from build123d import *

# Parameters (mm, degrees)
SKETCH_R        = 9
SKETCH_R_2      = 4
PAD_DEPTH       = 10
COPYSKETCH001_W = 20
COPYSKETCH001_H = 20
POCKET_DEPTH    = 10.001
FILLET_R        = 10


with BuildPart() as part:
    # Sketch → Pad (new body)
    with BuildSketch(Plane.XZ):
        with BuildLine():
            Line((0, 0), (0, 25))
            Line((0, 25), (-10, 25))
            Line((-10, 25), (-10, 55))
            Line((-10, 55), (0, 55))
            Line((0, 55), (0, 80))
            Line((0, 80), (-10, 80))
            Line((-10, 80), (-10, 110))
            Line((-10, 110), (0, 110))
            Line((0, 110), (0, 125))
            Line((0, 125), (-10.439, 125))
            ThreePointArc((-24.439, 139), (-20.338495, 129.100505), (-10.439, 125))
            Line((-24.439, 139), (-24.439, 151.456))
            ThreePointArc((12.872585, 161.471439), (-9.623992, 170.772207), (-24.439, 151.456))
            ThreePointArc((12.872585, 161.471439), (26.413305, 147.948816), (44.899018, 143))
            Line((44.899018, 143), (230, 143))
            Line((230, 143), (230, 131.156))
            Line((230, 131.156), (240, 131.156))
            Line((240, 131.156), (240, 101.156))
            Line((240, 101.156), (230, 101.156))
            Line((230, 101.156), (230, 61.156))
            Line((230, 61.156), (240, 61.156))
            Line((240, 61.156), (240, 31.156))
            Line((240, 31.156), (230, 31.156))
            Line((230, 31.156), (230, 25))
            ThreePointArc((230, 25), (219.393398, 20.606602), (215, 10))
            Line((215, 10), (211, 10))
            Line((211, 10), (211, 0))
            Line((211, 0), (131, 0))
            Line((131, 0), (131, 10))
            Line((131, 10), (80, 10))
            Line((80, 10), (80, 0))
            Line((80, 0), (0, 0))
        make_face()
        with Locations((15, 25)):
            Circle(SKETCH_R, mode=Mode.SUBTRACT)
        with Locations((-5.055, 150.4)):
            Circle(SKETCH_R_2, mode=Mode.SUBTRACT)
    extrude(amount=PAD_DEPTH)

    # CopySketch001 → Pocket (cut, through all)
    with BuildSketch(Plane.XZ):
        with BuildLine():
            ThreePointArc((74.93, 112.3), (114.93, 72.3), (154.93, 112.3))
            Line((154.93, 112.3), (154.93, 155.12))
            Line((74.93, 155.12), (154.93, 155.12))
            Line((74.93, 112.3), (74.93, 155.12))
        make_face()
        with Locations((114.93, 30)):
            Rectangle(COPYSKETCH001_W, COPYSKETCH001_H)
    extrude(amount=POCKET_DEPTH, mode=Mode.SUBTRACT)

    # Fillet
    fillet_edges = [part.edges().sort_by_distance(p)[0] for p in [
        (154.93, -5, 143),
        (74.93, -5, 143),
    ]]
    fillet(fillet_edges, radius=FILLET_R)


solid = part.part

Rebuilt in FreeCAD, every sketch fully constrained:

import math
import FreeCAD as App
import Part
import Sketcher
from FreeCAD import Vector
Q = App.Units.Quantity


def edges_at(feature, points):
    """Names of the edges that pass closest to the given points."""
    edges = feature.Shape.Edges
    near = lambda p: min(range(len(edges)), key=lambda i: edges[i].distToShape(Part.Vertex(*p))[0])
    return sorted({f"Edge{near(p) + 1}" for p in points})

doc = App.newDocument("Part")
body = doc.addObject("PartDesign::Body", "Body")

sketch1 = body.newObject("Sketcher::SketchObject", "Sketch")
sketch1.AttachmentSupport = (doc.getObject("XZ_Plane"), [""])
sketch1.MapMode = "FlatFace"
sketch1.addGeometry(Part.LineSegment(Vector(0, 25, 0), Vector(0, 0, 0)), False)
sketch1.addGeometry(Part.LineSegment(Vector(0, 0, 0), Vector(80, 0, 0)), False)
sketch1.addGeometry(Part.LineSegment(Vector(80, 0, 0), Vector(80, 10, 0)), False)
sketch1.addGeometry(Part.LineSegment(Vector(80, 10, 0), Vector(131, 10, 0)), False)
sketch1.addGeometry(Part.LineSegment(Vector(131, 10, 0), Vector(131, 0, 0)), False)
sketch1.addGeometry(Part.LineSegment(Vector(131, 0, 0), Vector(211, 0, 0)), False)
sketch1.addGeometry(Part.LineSegment(Vector(211, 0, 0), Vector(211, 10, 0)), False)
sketch1.addGeometry(Part.LineSegment(Vector(211, 10, 0), Vector(215, 10, 0)), False)
sketch1.addGeometry(Part.ArcOfCircle(Part.Circle(Vector(230, 10, 0), Vector(0, 0, 1), 15), math.radians(90), math.radians(180)), False)
sketch1.addGeometry(Part.LineSegment(Vector(230, 25, 0), Vector(230, 31.2, 0)), False)
sketch1.addGeometry(Part.LineSegment(Vector(230, 31.2, 0), Vector(240, 31.2, 0)), False)
sketch1.addGeometry(Part.LineSegment(Vector(240, 31.2, 0), Vector(240, 61.2, 0)), False)
sketch1.addGeometry(Part.LineSegment(Vector(240, 61.2, 0), Vector(230, 61.2, 0)), False)
sketch1.addGeometry(Part.LineSegment(Vector(230, 61.2, 0), Vector(230, 101.2, 0)), False)
sketch1.addGeometry(Part.LineSegment(Vector(230, 101.2, 0), Vector(240, 101.2, 0)), False)
sketch1.addGeometry(Part.LineSegment(Vector(240, 101.2, 0), Vector(240, 131.2, 0)), False)
sketch1.addGeometry(Part.LineSegment(Vector(240, 131.2, 0), Vector(230, 131.2, 0)), False)
sketch1.addGeometry(Part.LineSegment(Vector(230, 131.2, 0), Vector(230, 143, 0)), False)
sketch1.addGeometry(Part.LineSegment(Vector(230, 143, 0), Vector(44.9, 143, 0)), False)
sketch1.addGeometry(Part.ArcOfCircle(Part.Circle(Vector(44.9, 180, 0), Vector(0, 0, 1), 37), math.radians(-150), math.radians(-90)), False)
sketch1.addGeometry(Part.ArcOfCircle(Part.Circle(Vector(-4.4, 151.5, 0), Vector(0, 0, 1), 20), math.radians(30), math.radians(180)), False)
sketch1.addGeometry(Part.LineSegment(Vector(-24.4, 151.5, 0), Vector(-24.4, 139, 0)), False)
sketch1.addGeometry(Part.ArcOfCircle(Part.Circle(Vector(-10.4, 139, 0), Vector(0, 0, 1), 14), math.radians(180), math.radians(270)), False)
sketch1.addGeometry(Part.LineSegment(Vector(-10.4, 125, 0), Vector(0, 125, 0)), False)
sketch1.addGeometry(Part.LineSegment(Vector(0, 125, 0), Vector(0, 110, 0)), False)
sketch1.addGeometry(Part.LineSegment(Vector(0, 110, 0), Vector(-10, 110, 0)), False)
sketch1.addGeometry(Part.LineSegment(Vector(-10, 110, 0), Vector(-10, 80, 0)), False)
sketch1.addGeometry(Part.LineSegment(Vector(-10, 80, 0), Vector(0, 80, 0)), False)
sketch1.addGeometry(Part.LineSegment(Vector(0, 80, 0), Vector(0, 55, 0)), False)
sketch1.addGeometry(Part.LineSegment(Vector(0, 55, 0), Vector(-10, 55, 0)), False)
sketch1.addGeometry(Part.LineSegment(Vector(-10, 55, 0), Vector(-10, 25, 0)), False)
sketch1.addGeometry(Part.LineSegment(Vector(-10, 25, 0), Vector(0, 25, 0)), False)
sketch1.addGeometry(Part.Circle(Vector(15, 25, 0), Vector(0, 0, 1), 9), False)
sketch1.addGeometry(Part.Circle(Vector(-5.1, 150.4, 0), Vector(0, 0, 1), 4), False)
sketch1.addConstraint(Sketcher.Constraint("Coincident", 0, 2, 1, 1))
sketch1.addConstraint(Sketcher.Constraint("Coincident", 1, 2, 2, 1))
sketch1.addConstraint(Sketcher.Constraint("Coincident", 2, 2, 3, 1))
sketch1.addConstraint(Sketcher.Constraint("Coincident", 3, 2, 4, 1))
sketch1.addConstraint(Sketcher.Constraint("Coincident", 4, 2, 5, 1))
sketch1.addConstraint(Sketcher.Constraint("Coincident", 5, 2, 6, 1))
sketch1.addConstraint(Sketcher.Constraint("Coincident", 6, 2, 7, 1))
sketch1.addConstraint(Sketcher.Constraint("Coincident", 7, 2, 8, 2))
sketch1.addConstraint(Sketcher.Constraint("Coincident", 8, 1, 9, 1))
sketch1.addConstraint(Sketcher.Constraint("Coincident", 9, 2, 10, 1))
sketch1.addConstraint(Sketcher.Constraint("Coincident", 10, 2, 11, 1))
sketch1.addConstraint(Sketcher.Constraint("Coincident", 11, 2, 12, 1))
sketch1.addConstraint(Sketcher.Constraint("Coincident", 12, 2, 13, 1))
sketch1.addConstraint(Sketcher.Constraint("Coincident", 13, 2, 14, 1))
sketch1.addConstraint(Sketcher.Constraint("Coincident", 14, 2, 15, 1))
sketch1.addConstraint(Sketcher.Constraint("Coincident", 15, 2, 16, 1))
sketch1.addConstraint(Sketcher.Constraint("Coincident", 16, 2, 17, 1))
sketch1.addConstraint(Sketcher.Constraint("Coincident", 17, 2, 18, 1))
sketch1.addConstraint(Sketcher.Constraint("Tangent", 18, 2, 19, 2))
sketch1.addConstraint(Sketcher.Constraint("Tangent", 19, 1, 20, 1))
sketch1.addConstraint(Sketcher.Constraint("Tangent", 20, 2, 21, 1))
sketch1.addConstraint(Sketcher.Constraint("Tangent", 21, 2, 22, 1))
sketch1.addConstraint(Sketcher.Constraint("Tangent", 22, 2, 23, 1))
sketch1.addConstraint(Sketcher.Constraint("Coincident", 23, 2, 24, 1))
sketch1.addConstraint(Sketcher.Constraint("Coincident", 24, 2, 25, 1))
sketch1.addConstraint(Sketcher.Constraint("Coincident", 25, 2, 26, 1))
sketch1.addConstraint(Sketcher.Constraint("Coincident", 26, 2, 27, 1))
sketch1.addConstraint(Sketcher.Constraint("Coincident", 27, 2, 28, 1))
sketch1.addConstraint(Sketcher.Constraint("Coincident", 28, 2, 29, 1))
sketch1.addConstraint(Sketcher.Constraint("Coincident", 29, 2, 30, 1))
sketch1.addConstraint(Sketcher.Constraint("Coincident", 30, 2, 31, 1))
sketch1.addConstraint(Sketcher.Constraint("Coincident", 31, 2, 0, 1))
sketch1.addConstraint(Sketcher.Constraint("Vertical", 0))
sketch1.addConstraint(Sketcher.Constraint("Horizontal", 1))
sketch1.addConstraint(Sketcher.Constraint("Vertical", 2))
sketch1.addConstraint(Sketcher.Constraint("Horizontal", 3))
sketch1.addConstraint(Sketcher.Constraint("Vertical", 4))
sketch1.addConstraint(Sketcher.Constraint("Horizontal", 5))
sketch1.addConstraint(Sketcher.Constraint("Vertical", 6))
sketch1.addConstraint(Sketcher.Constraint("Horizontal", 7))
sketch1.addConstraint(Sketcher.Constraint("Vertical", 9))
sketch1.addConstraint(Sketcher.Constraint("Horizontal", 10))
sketch1.addConstraint(Sketcher.Constraint("Vertical", 11))
sketch1.addConstraint(Sketcher.Constraint("Horizontal", 12))
sketch1.addConstraint(Sketcher.Constraint("Vertical", 13))
sketch1.addConstraint(Sketcher.Constraint("Horizontal", 14))
sketch1.addConstraint(Sketcher.Constraint("Vertical", 15))
sketch1.addConstraint(Sketcher.Constraint("Horizontal", 16))
sketch1.addConstraint(Sketcher.Constraint("Vertical", 17))
sketch1.addConstraint(Sketcher.Constraint("Horizontal", 18))
sketch1.addConstraint(Sketcher.Constraint("Vertical", 21))
sketch1.addConstraint(Sketcher.Constraint("Horizontal", 23))
sketch1.addConstraint(Sketcher.Constraint("Vertical", 24))
sketch1.addConstraint(Sketcher.Constraint("Horizontal", 25))
sketch1.addConstraint(Sketcher.Constraint("Vertical", 26))
sketch1.addConstraint(Sketcher.Constraint("Horizontal", 27))
sketch1.addConstraint(Sketcher.Constraint("Vertical", 28))
sketch1.addConstraint(Sketcher.Constraint("Horizontal", 29))
sketch1.addConstraint(Sketcher.Constraint("Vertical", 30))
sketch1.addConstraint(Sketcher.Constraint("Horizontal", 31))
sketch1.addConstraint(Sketcher.Constraint("Coincident", 0, 2, -1, 1))
sketch1.addConstraint(Sketcher.Constraint("PointOnObject", 4, 2, -1))
sketch1.addConstraint(Sketcher.Constraint("PointOnObject", 23, 2, -2))
sketch1.addConstraint(Sketcher.Constraint("PointOnObject", 27, 2, -2))
sketch1.addConstraint(Sketcher.Constraint("Horizontal", 8, 3, 2, 2))
sketch1.addConstraint(Sketcher.Constraint("Horizontal", 3, 2, 6, 2))
sketch1.addConstraint(Sketcher.Constraint("Horizontal", 32, 3, 8, 1))
sketch1.addConstraint(Sketcher.Constraint("Horizontal", 8, 1, 30, 2))
sketch1.addConstraint(Sketcher.Constraint("Vertical", 9, 2, 12, 2))
sketch1.addConstraint(Sketcher.Constraint("Vertical", 11, 2, 14, 2))
sketch1.addConstraint(Sketcher.Constraint("Vertical", 13, 2, 16, 2))
sketch1.addConstraint(Sketcher.Constraint("Vertical", 26, 2, 29, 2))
sketch1.addConstraint(Sketcher.Constraint("Equal", 1, 5))
sketch1.addConstraint(Sketcher.Constraint("Equal", 16, 25))
sketch1.addConstraint(Sketcher.Constraint("Equal", 31, 2))
sketch1.addConstraint(Sketcher.Constraint("Equal", 11, 15))
sketch1.addConstraint(Sketcher.Constraint("Equal", 15, 26))
sketch1.addConstraint(Sketcher.Constraint("Equal", 0, 28))
sketch1.addConstraint(Sketcher.Constraint("Equal", 26, 30))
sketch1.addConstraint(Sketcher.Constraint("Diameter", 32, Q("18 mm")))
sketch1.addConstraint(Sketcher.Constraint("Diameter", 33, Q("8 mm")))
sketch1.addConstraint(Sketcher.Constraint("Radius", 8, Q("14.999999 mm")))
sketch1.addConstraint(Sketcher.Constraint("Radius", 19, Q("37.000001 mm")))
sketch1.addConstraint(Sketcher.Constraint("Radius", 20, Q("20 mm")))
sketch1.addConstraint(Sketcher.Constraint("Radius", 22, Q("14 mm")))
sketch1.addConstraint(Sketcher.Constraint("DistanceX", 1, 1, 1, 2, Q("80 mm")))
sketch1.addConstraint(Sketcher.Constraint("DistanceX", 3, 1, 3, 2, Q("51 mm")))
sketch1.addConstraint(Sketcher.Constraint("DistanceX", 7, 1, 7, 2, Q("4 mm")))
sketch1.addConstraint(Sketcher.Constraint("DistanceX", 10, 1, 10, 2, Q("10 mm")))
sketch1.addConstraint(Sketcher.Constraint("DistanceY", 11, 1, 11, 2, Q("30 mm")))
sketch1.addConstraint(Sketcher.Constraint("DistanceY", 13, 1, 13, 2, Q("40 mm")))
sketch1.addConstraint(Sketcher.Constraint("DistanceY", 24, 2, 24, 1, Q("15 mm")))
sketch1.addConstraint(Sketcher.Constraint("DistanceY", -1, 1, 19, 3, Q("180.000001 mm")))
sketch1.addConstraint(Sketcher.Constraint("DistanceX", -1, 1, 32, 3, Q("15 mm")))
sketch1.addConstraint(Sketcher.Constraint("DistanceX", -1, 1, 8, 1, Q("230 mm")))
sketch1.addConstraint(Sketcher.Constraint("DistanceY", -1, 1, 33, 3, Q("150.4 mm")))
sketch1.addConstraint(Sketcher.Constraint("DistanceX", 23, 1, 23, 2, Q("10.439 mm")))
sketch1.addConstraint(Sketcher.Constraint("DistanceY", 9, 1, 9, 2, Q("6.156 mm")))
sketch1.addConstraint(Sketcher.Constraint("DistanceY", 21, 2, 21, 1, Q("12.456 mm")))
sketch1.addConstraint(Sketcher.Constraint("DistanceX", 33, 3, -1, 1, Q("5.055 mm")))
pad1 = body.newObject("PartDesign::Pad", "Pad")
pad1.Profile = sketch1
pad1.Length = 10

sketch2 = body.newObject("Sketcher::SketchObject", "Sketch001")
sketch2.AttachmentSupport = (doc.getObject("XZ_Plane"), [""])
sketch2.MapMode = "FlatFace"
sketch2.addGeometry(Part.ArcOfCircle(Part.Circle(Vector(115, 112, 0), Vector(0, 0, 1), 40), math.radians(180), math.radians(360)), False)
sketch2.addGeometry(Part.LineSegment(Vector(155, 112, 0), Vector(155, 155, 0)), False)
sketch2.addGeometry(Part.LineSegment(Vector(155, 155, 0), Vector(75, 155, 0)), False)
sketch2.addGeometry(Part.LineSegment(Vector(75, 155, 0), Vector(75, 112, 0)), False)
sketch2.addGeometry(Part.LineSegment(Vector(105, 40, 0), Vector(105, 20, 0)), False)
sketch2.addGeometry(Part.LineSegment(Vector(105, 20, 0), Vector(125, 20, 0)), False)
sketch2.addGeometry(Part.LineSegment(Vector(125, 20, 0), Vector(125, 40, 0)), False)
sketch2.addGeometry(Part.LineSegment(Vector(125, 40, 0), Vector(105, 40, 0)), False)
sketch2.addConstraint(Sketcher.Constraint("Tangent", 0, 2, 1, 1))
sketch2.addConstraint(Sketcher.Constraint("Coincident", 1, 2, 2, 1))
sketch2.addConstraint(Sketcher.Constraint("Coincident", 2, 2, 3, 1))
sketch2.addConstraint(Sketcher.Constraint("Tangent", 3, 2, 0, 1))
sketch2.addConstraint(Sketcher.Constraint("Coincident", 4, 2, 5, 1))
sketch2.addConstraint(Sketcher.Constraint("Coincident", 5, 2, 6, 1))
sketch2.addConstraint(Sketcher.Constraint("Coincident", 6, 2, 7, 1))
sketch2.addConstraint(Sketcher.Constraint("Coincident", 7, 2, 4, 1))
sketch2.addConstraint(Sketcher.Constraint("Vertical", 1))
sketch2.addConstraint(Sketcher.Constraint("Horizontal", 2))
sketch2.addConstraint(Sketcher.Constraint("Vertical", 3))
sketch2.addConstraint(Sketcher.Constraint("Vertical", 4))
sketch2.addConstraint(Sketcher.Constraint("Horizontal", 5))
sketch2.addConstraint(Sketcher.Constraint("Vertical", 6))
sketch2.addConstraint(Sketcher.Constraint("Horizontal", 7))
sketch2.addConstraint(Sketcher.Constraint("Equal", 7, 4))
sketch2.addConstraint(Sketcher.Constraint("Radius", 0, Q("40 mm")))
sketch2.addConstraint(Sketcher.Constraint("DistanceX", 5, 1, 5, 2, Q("20 mm")))
sketch2.addConstraint(Sketcher.Constraint("DistanceY", -1, 1, 4, 2, Q("20 mm")))
sketch2.addConstraint(Sketcher.Constraint("DistanceX", 4, 2, 0, 3, Q("10 mm")))
sketch2.addConstraint(Sketcher.Constraint("DistanceY", 1, 1, 1, 2, Q("42.82 mm")))
sketch2.addConstraint(Sketcher.Constraint("DistanceY", -1, 1, 0, 3, Q("112.3 mm")))
sketch2.addConstraint(Sketcher.Constraint("DistanceX", -1, 1, 0, 3, Q("114.93 mm")))
pocket1 = body.newObject("PartDesign::Pocket", "Pocket")
pocket1.Profile = sketch2
pocket1.Type = "ThroughAll"
pocket1.Reversed = True
doc.recompute()

fillet = body.newObject("PartDesign::Fillet", "Fillet")
fillet.Base = (pocket1, edges_at(pocket1, [(154.93, -5, 143), (74.93, -5, 143)]))
fillet.Radius = 10

doc.recompute()
